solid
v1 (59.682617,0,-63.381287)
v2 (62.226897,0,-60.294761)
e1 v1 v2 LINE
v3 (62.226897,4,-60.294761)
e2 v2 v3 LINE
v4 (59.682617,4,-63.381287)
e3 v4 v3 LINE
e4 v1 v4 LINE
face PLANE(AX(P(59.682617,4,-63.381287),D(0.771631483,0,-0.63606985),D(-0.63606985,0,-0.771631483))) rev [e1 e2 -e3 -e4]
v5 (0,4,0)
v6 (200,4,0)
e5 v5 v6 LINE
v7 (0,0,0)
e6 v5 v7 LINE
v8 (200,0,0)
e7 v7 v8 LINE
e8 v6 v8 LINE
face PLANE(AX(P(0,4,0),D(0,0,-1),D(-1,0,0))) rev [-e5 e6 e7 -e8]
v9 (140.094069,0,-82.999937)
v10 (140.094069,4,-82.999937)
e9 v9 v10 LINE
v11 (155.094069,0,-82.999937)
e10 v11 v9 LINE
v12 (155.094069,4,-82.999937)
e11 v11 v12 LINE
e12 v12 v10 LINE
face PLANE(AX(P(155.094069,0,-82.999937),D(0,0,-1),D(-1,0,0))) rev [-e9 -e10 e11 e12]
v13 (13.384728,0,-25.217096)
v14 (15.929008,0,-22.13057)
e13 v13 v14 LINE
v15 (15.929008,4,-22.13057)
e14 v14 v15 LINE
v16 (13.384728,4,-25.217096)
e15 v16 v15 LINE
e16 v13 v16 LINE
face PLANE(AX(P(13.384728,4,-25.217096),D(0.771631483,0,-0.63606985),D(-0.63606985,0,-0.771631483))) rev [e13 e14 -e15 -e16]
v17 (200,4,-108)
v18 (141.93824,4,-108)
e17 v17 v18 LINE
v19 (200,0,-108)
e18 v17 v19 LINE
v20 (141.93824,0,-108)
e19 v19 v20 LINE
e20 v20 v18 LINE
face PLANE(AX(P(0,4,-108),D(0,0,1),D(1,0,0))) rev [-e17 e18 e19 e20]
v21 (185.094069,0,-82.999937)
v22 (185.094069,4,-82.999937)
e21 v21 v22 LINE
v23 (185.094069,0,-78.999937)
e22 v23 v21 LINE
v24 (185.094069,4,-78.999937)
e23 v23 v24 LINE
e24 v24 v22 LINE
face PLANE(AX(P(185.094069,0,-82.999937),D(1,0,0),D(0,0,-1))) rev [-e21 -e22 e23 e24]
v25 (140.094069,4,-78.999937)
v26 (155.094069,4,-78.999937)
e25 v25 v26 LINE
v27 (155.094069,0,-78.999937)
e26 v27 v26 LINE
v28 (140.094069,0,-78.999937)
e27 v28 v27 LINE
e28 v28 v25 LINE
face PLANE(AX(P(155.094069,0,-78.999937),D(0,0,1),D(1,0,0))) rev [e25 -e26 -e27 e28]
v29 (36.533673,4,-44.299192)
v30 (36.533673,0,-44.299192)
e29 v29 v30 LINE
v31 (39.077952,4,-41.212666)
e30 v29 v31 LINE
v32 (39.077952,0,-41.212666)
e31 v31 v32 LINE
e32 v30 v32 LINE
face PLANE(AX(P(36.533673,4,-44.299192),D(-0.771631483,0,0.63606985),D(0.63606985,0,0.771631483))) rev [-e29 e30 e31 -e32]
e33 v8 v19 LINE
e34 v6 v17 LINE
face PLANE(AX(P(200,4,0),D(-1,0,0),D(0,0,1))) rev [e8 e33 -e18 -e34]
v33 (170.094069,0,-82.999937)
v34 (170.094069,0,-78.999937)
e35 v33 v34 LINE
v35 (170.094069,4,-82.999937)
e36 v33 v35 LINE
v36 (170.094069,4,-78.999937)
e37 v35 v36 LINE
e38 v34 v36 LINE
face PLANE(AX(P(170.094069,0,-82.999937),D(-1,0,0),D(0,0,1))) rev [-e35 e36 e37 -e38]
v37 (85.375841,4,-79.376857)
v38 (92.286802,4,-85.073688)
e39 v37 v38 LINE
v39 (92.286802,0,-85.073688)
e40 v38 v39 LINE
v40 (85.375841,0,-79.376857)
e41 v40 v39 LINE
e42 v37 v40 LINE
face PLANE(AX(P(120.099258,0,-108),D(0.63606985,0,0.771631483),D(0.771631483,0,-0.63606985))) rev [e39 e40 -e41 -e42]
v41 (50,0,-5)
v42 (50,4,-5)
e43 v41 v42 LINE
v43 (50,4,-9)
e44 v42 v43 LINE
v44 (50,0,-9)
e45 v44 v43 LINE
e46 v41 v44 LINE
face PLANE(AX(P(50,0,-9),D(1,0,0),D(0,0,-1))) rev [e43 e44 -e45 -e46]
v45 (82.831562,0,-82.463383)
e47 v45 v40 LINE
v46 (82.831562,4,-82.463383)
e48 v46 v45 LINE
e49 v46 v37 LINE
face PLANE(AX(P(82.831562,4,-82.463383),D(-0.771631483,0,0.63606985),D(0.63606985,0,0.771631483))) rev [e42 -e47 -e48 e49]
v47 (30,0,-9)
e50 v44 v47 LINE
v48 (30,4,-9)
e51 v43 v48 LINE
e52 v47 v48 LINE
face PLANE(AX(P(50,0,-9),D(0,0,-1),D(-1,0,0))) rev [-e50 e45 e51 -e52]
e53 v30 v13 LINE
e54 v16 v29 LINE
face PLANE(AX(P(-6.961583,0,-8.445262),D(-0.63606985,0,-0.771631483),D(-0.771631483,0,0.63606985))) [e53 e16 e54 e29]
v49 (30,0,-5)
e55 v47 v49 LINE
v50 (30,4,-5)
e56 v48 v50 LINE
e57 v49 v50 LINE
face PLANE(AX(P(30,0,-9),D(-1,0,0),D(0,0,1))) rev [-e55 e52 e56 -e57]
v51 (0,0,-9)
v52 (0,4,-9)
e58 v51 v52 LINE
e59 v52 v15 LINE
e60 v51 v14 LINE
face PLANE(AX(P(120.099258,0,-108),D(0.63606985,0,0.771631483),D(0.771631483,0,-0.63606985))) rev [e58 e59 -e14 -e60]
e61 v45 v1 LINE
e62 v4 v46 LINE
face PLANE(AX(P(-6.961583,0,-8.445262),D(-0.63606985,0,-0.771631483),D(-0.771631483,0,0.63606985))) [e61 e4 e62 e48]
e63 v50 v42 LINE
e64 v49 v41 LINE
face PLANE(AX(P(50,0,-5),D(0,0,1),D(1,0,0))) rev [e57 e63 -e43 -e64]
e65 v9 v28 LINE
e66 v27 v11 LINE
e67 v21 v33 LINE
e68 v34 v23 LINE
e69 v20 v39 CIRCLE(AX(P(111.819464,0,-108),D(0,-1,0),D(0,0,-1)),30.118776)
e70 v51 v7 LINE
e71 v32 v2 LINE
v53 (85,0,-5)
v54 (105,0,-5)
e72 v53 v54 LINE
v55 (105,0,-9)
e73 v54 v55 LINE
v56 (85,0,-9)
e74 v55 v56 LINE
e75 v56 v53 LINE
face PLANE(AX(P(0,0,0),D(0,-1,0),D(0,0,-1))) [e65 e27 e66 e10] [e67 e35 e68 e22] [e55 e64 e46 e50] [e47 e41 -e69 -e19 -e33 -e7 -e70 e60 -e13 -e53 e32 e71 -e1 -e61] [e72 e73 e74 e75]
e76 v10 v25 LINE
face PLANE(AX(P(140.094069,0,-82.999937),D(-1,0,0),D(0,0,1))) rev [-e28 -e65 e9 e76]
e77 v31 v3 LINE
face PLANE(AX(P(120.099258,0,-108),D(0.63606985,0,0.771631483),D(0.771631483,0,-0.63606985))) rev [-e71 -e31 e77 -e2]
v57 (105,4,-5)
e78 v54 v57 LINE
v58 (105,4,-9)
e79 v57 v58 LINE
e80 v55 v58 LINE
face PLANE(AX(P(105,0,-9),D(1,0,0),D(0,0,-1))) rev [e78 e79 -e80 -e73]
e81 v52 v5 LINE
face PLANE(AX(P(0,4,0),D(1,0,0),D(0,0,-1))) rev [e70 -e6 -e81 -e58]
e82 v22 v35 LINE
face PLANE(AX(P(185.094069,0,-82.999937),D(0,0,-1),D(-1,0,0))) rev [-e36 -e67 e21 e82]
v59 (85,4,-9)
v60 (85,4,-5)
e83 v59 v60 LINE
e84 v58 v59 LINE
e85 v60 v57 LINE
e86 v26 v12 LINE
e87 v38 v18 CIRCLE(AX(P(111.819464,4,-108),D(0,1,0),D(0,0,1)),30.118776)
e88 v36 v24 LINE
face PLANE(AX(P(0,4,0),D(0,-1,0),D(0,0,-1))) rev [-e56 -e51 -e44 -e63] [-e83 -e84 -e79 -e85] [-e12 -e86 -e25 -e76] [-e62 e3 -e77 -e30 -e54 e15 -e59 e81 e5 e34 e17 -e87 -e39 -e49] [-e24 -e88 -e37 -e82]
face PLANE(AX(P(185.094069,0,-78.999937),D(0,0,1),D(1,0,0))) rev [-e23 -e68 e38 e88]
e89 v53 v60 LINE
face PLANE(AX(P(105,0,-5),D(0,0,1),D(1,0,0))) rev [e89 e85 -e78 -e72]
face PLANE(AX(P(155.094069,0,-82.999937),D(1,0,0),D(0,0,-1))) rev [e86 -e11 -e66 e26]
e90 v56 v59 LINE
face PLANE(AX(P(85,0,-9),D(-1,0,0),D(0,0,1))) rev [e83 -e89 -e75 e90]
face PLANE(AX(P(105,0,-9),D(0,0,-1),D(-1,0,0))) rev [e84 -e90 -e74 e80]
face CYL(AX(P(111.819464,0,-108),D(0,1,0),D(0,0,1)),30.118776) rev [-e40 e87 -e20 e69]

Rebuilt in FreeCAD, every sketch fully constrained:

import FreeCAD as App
import Part
import Sketcher
from FreeCAD import Vector
Q = App.Units.Quantity


def add_polygon(sketch, points):
    """Adds a closed chain of lines whose ends are joined by coincident constraints."""
    first, n = sketch.GeometryCount, len(points)
    for a, b in zip(points, points[1:] + points[:1]):
        sketch.addGeometry(Part.LineSegment(App.Vector(*a, 0), App.Vector(*b, 0)), False)
    for i in range(n):
        sketch.addConstraint(Sketcher.Constraint("Coincident", first + i, 2, first + (i + 1) % n, 1))

doc = App.newDocument("Part")
body = doc.addObject("PartDesign::Body", "Body")

# Sketch on XZ plane
sketch1 = doc.addObject("Sketcher::SketchObject", "Sketch")
body.addObject(sketch1)
sketch1.AttachmentSupport = (doc.XZ_Plane, [""])
sketch1.MapMode = "FlatFace"
add_polygon(sketch1, [(0, -108), (0, 0), (200, 0), (200, -108)])  # lines 0-3
sketch1.addConstraint([
    Sketcher.Constraint("Vertical", 0),
    Sketcher.Constraint("Horizontal", 1),
    Sketcher.Constraint("Vertical", 2),
    Sketcher.Constraint("Horizontal", 3),
    Sketcher.Constraint("Coincident", 0, 2, -1, 1),
    Sketcher.Constraint("DistanceX", 1, 1, 1, 2, Q("200 mm")),
    Sketcher.Constraint("DistanceY", 0, 1, 0, 2, Q("108 mm")),
])
pad1 = doc.addObject("PartDesign::Pad", "Pad")
body.addObject(pad1)
pad1.Profile = sketch1
pad1.Length = 4
pad1.Reversed = True

# Sketch on XZ plane
sketch2 = doc.addObject("Sketcher::SketchObject", "Sketch001")
body.addObject(sketch2)
sketch2.AttachmentSupport = (doc.XZ_Plane, [""])
sketch2.MapMode = "FlatFace"
sketch2.AttachmentOffset = App.Placement(Vector(0, 0, -4), App.Rotation())
add_polygon(sketch2, [(0, -9), (120, -108), (0, -108)])  # lines 0-2
sketch2.addConstraint([
    Sketcher.Constraint("Horizontal", 1),
    Sketcher.Constraint("Vertical", 2),
    Sketcher.Constraint("PointOnObject", 1, 2, -2),
    Sketcher.Constraint("DistanceY", 2, 1, 2, 2, Q("99 mm")),
    Sketcher.Constraint("DistanceY", 0, 2, -1, 1, Q("108 mm")),
    Sketcher.Constraint("DistanceX", 1, 2, 1, 1, Q("120.099258 mm")),
])
pocket1 = doc.addObject("PartDesign::Pocket", "Pocket")
body.addObject(pocket1)
pocket1.Profile = sketch2
pocket1.Type = "ThroughAll"
pocket1.Reversed = True

# Sketch on an angled plane
sketch3 = doc.addObject("Sketcher::SketchObject", "Sketch002")
body.addObject(sketch3)
sketch3.Placement = App.Placement(Vector(-4.417304, 0, -5.358736), App.Rotation(Vector(-0.771631483, 0, 0.63606985), Vector(0, 1, 0), Vector(-0.63606985, 0, -0.771631483), "ZXY"))
add_polygon(sketch3, [(-116.4, 4), (-116.4, 0), (-86.4, 0), (-86.4, 4)])  # lines 0-3
add_polygon(sketch3, [(-56.4, 4), (-56.4, 0), (-26.4, 0), (-26.4, 4)])  # lines 4-7
sketch3.addConstraint([
    Sketcher.Constraint("Vertical", 0),
    Sketcher.Constraint("Horizontal", 1),
    Sketcher.Constraint("Vertical", 2),
    Sketcher.Constraint("Horizontal", 3),
    Sketcher.Constraint("Vertical", 4),
    Sketcher.Constraint("Horizontal", 5),
    Sketcher.Constraint("Vertical", 6),
    Sketcher.Constraint("Horizontal", 7),
    Sketcher.Constraint("PointOnObject", 0, 2, -1),
    Sketcher.Constraint("PointOnObject", 4, 2, -1),
    Sketcher.Constraint("Horizontal", 3, 2, 6, 2),
    Sketcher.Constraint("Equal", 3, 5),
    Sketcher.Constraint("DistanceX", 1, 1, 1, 2, Q("30 mm")),
    Sketcher.Constraint("DistanceY", 0, 2, 0, 1, Q("4 mm")),
    Sketcher.Constraint("DistanceX", 1, 2, 4, 2, Q("30 mm")),
    Sketcher.Constraint("DistanceX", 0, 2, -1, 1, Q("116.367912 mm")),
])
pad2 = doc.addObject("PartDesign::Pad", "Pad001")
body.addObject(pad2)
pad2.Profile = sketch3
pad2.Length = 4

# Sketch on XZ plane
sketch4 = doc.addObject("Sketcher::SketchObject", "Sketch003")
body.addObject(sketch4)
sketch4.AttachmentSupport = (doc.XZ_Plane, [""])
sketch4.MapMode = "FlatFace"
sketch4.AttachmentOffset = App.Placement(Vector(0, 0, -4), App.Rotation())
add_polygon(sketch4, [(170.1, -83), (170.1, -79), (185.1, -79), (185.1, -83)])  # lines 0-3
add_polygon(sketch4, [(140.1, -83), (140.1, -79), (155.1, -79), (155.1, -83)])  # lines 4-7
add_polygon(sketch4, [(85, -9), (85, -5), (105, -5), (105, -9)])  # lines 8-11
add_polygon(sketch4, [(30, -9), (30, -5), (50, -5), (50, -9)])  # lines 12-15
sketch4.addConstraint([
    Sketcher.Constraint("Vertical", 0),
    Sketcher.Constraint("Horizontal", 1),
    Sketcher.Constraint("Vertical", 2),
    Sketcher.Constraint("Horizontal", 3),
    Sketcher.Constraint("Vertical", 4),
    Sketcher.Constraint("Horizontal", 5),
    Sketcher.Constraint("Vertical", 6),
    Sketcher.Constraint("Horizontal", 7),
    Sketcher.Constraint("Vertical", 8),
    Sketcher.Constraint("Horizontal", 9),
    Sketcher.Constraint("Vertical", 10),
    Sketcher.Constraint("Horizontal", 11),
    Sketcher.Constraint("Vertical", 12),
    Sketcher.Constraint("Horizontal", 13),
    Sketcher.Constraint("Vertical", 14),
    Sketcher.Constraint("Horizontal", 15),
    Sketcher.Constraint("Horizontal", 1, 2, 4, 2),
    Sketcher.Constraint("Horizontal", 3, 2, 6, 2),
    Sketcher.Constraint("Horizontal", 9, 2, 12, 2),
    Sketcher.Constraint("Horizontal", 11, 2, 14, 2),
    Sketcher.Constraint("Equal", 3, 5),
    Sketcher.Constraint("Equal", 11, 13),
    Sketcher.Constraint("Equal", 6, 8),
    Sketcher.Constraint("DistanceX", 1, 1, 1, 2, Q("15 mm")),
    Sketcher.Constraint("DistanceX", 9, 1, 9, 2, Q("20 mm")),
    Sketcher.Constraint("DistanceY", 0, 1, 0, 2, Q("4 mm")),
    Sketcher.Constraint("DistanceX", -1, 1, 8, 2, Q("85 mm")),
    Sketcher.Constraint("DistanceY", 8, 2, -1, 1, Q("5 mm")),
    Sketcher.Constraint("DistanceX", -1, 1, 12, 2, Q("30 mm")),
    Sketcher.Constraint("DistanceX", 4, 2, 0, 2, Q("30 mm")),
    Sketcher.Constraint("DistanceX", -1, 1, 0, 2, Q("170.094069 mm")),
    Sketcher.Constraint("DistanceY", 0, 2, -1, 1, Q("78.999937 mm")),
])
pocket2 = doc.addObject("PartDesign::Pocket", "Pocket001")
body.addObject(pocket2)
pocket2.Profile = sketch4
pocket2.Type = "ThroughAll"
pocket2.Reversed = True

# Sketch on XZ plane
sketch5 = doc.addObject("Sketcher::SketchObject", "Sketch004")
body.addObject(sketch5)
sketch5.AttachmentSupport = (doc.XZ_Plane, [""])
sketch5.MapMode = "FlatFace"
sketch5.AttachmentOffset = App.Placement(Vector(0, 0, -4), App.Rotation())
sketch5.addGeometry(Part.Circle(Vector(112, -108, 0), Vector(0, 0, 1), 30), False)
sketch5.addConstraint([
    Sketcher.Constraint("DistanceY", 0, 3, -1, 1, Q("108 mm")),
    Sketcher.Constraint("Diameter", 0, Q("60.237553 mm")),
    Sketcher.Constraint("DistanceX", -1, 1, 0, 3, Q("111.819464 mm")),
])
pocket3 = doc.addObject("PartDesign::Pocket", "Pocket002")
body.addObject(pocket3)
pocket3.Profile = sketch5
pocket3.Type = "ThroughAll"
pocket3.Reversed = True

doc.recompute()
